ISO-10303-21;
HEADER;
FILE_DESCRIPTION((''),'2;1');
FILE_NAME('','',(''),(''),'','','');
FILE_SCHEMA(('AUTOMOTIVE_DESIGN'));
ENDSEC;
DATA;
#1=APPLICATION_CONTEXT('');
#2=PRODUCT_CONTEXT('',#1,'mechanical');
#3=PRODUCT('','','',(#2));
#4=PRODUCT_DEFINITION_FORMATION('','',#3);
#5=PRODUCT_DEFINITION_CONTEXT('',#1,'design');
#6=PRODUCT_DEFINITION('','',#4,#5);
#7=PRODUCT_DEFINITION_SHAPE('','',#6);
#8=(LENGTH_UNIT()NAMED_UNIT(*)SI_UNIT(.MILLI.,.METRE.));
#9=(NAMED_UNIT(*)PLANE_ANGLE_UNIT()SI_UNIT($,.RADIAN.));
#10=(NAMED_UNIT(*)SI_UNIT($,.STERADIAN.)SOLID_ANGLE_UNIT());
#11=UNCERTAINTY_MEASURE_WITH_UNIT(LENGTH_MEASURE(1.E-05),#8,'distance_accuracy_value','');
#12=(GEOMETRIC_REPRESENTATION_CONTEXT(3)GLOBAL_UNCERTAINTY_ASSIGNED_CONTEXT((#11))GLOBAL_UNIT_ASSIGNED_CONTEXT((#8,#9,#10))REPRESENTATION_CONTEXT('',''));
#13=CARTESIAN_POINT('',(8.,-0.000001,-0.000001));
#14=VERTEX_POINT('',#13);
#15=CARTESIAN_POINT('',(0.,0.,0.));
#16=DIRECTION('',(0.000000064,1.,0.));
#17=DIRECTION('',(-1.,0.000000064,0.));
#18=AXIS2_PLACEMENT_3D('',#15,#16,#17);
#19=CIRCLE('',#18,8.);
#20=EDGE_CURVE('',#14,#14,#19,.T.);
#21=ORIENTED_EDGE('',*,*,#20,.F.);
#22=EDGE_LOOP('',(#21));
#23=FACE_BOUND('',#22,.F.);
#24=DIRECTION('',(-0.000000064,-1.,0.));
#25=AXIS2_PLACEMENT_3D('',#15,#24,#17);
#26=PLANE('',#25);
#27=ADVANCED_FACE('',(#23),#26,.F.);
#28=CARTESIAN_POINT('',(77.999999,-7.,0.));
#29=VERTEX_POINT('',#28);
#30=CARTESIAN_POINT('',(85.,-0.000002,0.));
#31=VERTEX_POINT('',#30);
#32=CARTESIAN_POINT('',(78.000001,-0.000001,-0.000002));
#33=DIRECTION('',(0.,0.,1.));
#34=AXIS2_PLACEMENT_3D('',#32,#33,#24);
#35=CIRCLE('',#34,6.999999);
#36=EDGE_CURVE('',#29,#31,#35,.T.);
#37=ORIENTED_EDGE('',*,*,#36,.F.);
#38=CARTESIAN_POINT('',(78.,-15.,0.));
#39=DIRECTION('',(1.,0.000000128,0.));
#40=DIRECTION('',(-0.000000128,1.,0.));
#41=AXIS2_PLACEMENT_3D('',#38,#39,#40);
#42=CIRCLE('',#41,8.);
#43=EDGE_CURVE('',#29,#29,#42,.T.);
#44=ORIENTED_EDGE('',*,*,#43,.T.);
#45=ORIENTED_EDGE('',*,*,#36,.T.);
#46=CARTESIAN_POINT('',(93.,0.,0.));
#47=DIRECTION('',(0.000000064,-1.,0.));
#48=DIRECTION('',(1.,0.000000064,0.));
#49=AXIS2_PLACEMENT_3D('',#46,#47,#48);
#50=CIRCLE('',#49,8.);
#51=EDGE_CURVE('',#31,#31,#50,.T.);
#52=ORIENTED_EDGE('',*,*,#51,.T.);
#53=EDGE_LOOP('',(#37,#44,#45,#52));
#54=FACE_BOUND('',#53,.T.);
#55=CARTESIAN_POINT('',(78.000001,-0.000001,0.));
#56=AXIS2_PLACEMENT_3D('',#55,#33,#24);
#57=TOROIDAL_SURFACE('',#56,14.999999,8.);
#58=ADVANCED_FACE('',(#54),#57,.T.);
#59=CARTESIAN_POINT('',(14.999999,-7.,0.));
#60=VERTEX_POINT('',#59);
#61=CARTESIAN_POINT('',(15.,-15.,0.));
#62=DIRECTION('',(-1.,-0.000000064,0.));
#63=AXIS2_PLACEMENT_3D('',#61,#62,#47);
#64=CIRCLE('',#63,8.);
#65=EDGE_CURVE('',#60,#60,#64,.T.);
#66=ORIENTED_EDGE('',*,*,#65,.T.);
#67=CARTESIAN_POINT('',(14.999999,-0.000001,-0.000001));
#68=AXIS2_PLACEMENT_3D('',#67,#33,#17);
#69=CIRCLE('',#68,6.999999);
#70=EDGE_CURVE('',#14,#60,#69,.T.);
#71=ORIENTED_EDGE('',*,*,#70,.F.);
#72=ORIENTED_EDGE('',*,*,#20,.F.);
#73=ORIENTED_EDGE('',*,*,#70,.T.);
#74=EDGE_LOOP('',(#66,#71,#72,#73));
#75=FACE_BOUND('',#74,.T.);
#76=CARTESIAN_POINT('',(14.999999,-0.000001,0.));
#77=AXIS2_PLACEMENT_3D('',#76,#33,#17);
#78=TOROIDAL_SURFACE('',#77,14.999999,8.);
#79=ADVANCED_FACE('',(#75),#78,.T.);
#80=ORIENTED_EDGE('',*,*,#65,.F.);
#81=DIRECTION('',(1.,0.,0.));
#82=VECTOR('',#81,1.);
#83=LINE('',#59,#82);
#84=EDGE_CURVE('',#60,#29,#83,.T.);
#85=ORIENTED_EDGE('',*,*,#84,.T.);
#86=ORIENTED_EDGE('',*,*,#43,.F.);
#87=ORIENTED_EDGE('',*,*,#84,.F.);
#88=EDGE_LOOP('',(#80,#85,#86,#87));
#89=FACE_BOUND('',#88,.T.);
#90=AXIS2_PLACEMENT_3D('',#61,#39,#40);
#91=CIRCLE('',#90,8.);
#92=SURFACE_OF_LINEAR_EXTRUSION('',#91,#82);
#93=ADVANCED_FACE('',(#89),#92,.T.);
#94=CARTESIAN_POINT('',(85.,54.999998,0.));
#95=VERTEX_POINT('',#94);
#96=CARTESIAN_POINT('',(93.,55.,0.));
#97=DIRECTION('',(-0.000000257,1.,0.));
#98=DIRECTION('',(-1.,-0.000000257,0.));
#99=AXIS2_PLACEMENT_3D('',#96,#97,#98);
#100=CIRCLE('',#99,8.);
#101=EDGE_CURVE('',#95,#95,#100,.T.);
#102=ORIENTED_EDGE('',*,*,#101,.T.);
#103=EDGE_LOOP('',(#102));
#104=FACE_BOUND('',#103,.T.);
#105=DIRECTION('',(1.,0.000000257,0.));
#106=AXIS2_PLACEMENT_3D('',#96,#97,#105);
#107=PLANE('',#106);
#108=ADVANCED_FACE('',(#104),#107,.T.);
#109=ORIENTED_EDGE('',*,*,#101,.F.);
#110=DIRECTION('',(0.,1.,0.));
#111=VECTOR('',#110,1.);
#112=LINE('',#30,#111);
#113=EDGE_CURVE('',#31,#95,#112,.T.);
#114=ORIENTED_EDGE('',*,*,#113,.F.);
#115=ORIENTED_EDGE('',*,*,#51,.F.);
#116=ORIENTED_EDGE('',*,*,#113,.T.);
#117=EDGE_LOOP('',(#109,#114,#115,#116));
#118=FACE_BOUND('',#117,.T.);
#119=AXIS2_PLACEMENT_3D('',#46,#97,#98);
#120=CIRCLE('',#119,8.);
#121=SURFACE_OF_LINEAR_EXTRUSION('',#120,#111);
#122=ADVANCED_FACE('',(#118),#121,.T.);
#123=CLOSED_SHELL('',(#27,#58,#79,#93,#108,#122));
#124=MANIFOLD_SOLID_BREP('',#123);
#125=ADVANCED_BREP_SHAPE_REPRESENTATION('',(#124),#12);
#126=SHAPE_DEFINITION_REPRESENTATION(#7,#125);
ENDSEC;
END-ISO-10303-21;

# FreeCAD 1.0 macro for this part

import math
import FreeCAD as App
import Part
import Sketcher
from FreeCAD import Vector

doc = App.newDocument("Part")
body = doc.addObject("PartDesign::Body", "Body")

# Sketch on XZ plane
sketch1 = doc.addObject("Sketcher::SketchObject", "Sketch")
body.addObject(sketch1)
sketch1.AttachmentSupport = (doc.XZ_Plane, [""])
sketch1.MapMode = "FlatFace"
sketch1.addGeometry(Part.Circle(Vector(0, 0, 0), Vector(0, 0, 1), 8), False)
sketch1.addConstraint([
    Sketcher.Constraint("Coincident", 0, 3, -1, 1),
    Sketcher.Constraint("Diameter", 0, 16.0),
])

# Sketch on XY plane
sketch2 = doc.addObject("Sketcher::SketchObject", "Sketch001")
body.addObject(sketch2)
sketch2.AttachmentSupport = (doc.XY_Plane, [""])
sketch2.MapMode = "FlatFace"
sketch2.addGeometry([
    Part.ArcOfCircle(Part.Circle(Vector(15, 0, 0), Vector(0, 0, 1), 15), math.radians(180), math.radians(270)),
    Part.LineSegment(Vector(15, -15, 0), Vector(78, -15, 0)),
    Part.ArcOfCircle(Part.Circle(Vector(78, 0, 0), Vector(0, 0, 1), 15), math.radians(-90), math.radians(0)),
    Part.LineSegment(Vector(93, 0, 0), Vector(93, 55, 0)),
], False)
sketch2.addConstraint([
    Sketcher.Constraint("Tangent", 0, 2, 1, 1),
    Sketcher.Constraint("Tangent", 1, 2, 2, 1),
    Sketcher.Constraint("Tangent", 2, 2, 3, 1),
    Sketcher.Constraint("Horizontal", 1),
    Sketcher.Constraint("Vertical", 3),
    Sketcher.Constraint("Coincident", 0, 1, -1, 1),
    Sketcher.Constraint("Equal", 0, 2),
    Sketcher.Constraint("PointOnObject", 0, 3, -1),
    Sketcher.Constraint("Radius", 0, 14.999999),
    Sketcher.Constraint("DistanceX", 1, 1, 1, 2, 63.0),
    Sketcher.Constraint("DistanceY", 3, 1, 3, 2, 55.0),
])
doc.recompute()

additivepipe = doc.addObject("PartDesign::AdditivePipe", "AdditivePipe")
body.addObject(additivepipe)
additivepipe.Profile = sketch1
additivepipe.Spine = (sketch2, ["Edge1", "Edge2", "Edge3", "Edge4"])

doc.recompute()
